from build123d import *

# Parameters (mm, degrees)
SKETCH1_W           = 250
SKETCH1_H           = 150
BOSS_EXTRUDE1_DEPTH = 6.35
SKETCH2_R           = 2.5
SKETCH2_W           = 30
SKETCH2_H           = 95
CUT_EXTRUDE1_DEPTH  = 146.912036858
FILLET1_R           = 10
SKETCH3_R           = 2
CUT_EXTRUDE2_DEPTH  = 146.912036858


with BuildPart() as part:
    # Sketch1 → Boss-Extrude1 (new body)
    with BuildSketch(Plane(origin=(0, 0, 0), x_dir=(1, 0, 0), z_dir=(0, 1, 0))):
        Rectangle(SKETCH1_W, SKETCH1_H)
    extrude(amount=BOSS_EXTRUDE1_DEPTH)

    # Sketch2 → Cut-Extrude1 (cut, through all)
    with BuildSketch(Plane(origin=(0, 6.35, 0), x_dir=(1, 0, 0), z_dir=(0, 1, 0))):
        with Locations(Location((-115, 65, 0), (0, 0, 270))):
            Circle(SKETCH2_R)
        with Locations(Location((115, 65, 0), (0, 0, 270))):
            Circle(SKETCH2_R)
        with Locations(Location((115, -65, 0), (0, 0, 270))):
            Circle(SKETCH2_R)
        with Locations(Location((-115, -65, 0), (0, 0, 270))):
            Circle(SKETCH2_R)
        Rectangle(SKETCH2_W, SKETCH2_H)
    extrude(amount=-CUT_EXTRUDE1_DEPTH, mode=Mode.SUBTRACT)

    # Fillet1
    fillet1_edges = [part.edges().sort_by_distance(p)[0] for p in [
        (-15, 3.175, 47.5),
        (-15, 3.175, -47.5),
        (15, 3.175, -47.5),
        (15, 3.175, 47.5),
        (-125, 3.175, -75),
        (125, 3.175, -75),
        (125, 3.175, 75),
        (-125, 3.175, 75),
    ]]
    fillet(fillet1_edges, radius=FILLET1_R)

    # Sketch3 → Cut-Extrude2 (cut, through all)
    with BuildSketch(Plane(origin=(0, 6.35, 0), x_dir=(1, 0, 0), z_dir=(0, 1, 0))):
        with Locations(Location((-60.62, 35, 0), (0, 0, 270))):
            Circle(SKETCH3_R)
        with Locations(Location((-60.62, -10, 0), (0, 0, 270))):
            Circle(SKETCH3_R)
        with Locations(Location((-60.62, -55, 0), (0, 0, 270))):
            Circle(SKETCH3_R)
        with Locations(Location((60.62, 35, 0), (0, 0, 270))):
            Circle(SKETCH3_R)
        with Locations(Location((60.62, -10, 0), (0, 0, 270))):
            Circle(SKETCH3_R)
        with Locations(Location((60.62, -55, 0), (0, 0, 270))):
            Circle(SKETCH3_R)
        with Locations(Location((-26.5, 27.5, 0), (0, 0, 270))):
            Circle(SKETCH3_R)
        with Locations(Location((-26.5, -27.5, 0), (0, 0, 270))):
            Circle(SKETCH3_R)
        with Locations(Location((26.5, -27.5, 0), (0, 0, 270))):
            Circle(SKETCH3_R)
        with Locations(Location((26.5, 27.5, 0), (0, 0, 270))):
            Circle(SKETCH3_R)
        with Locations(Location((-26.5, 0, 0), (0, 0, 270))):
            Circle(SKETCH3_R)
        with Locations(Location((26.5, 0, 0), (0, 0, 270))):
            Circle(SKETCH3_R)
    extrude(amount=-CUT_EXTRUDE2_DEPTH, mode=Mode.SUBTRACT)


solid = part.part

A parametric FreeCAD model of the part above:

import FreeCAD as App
import Part
import Sketcher
Q = App.Units.Quantity


def edges_at(feature, points):
    """Names of the edges that pass closest to the given points."""
    edges = feature.Shape.Edges
    near = lambda p: min(range(len(edges)), key=lambda i: edges[i].distToShape(Part.Vertex(*p))[0])
    return sorted({f"Edge{near(p) + 1}" for p in points})

doc = App.newDocument("Part")
params = doc.addObject("Spreadsheet::Sheet", "Params")
for row, (alias, value) in enumerate([
    ("sketch1_width", "250 mm"),
    ("sketch1_height", "150 mm"),
    ("pad1_length", "6.35 mm"),
    ("sketch2_diameter", "5 mm"),
    ("sketch2_width", "30 mm"),
    ("sketch2_height", "95 mm"),
    ("fillet_radius", "10 mm"),
    ("sketch3_diameter", "4 mm"),
], start=1):
    params.set(f"A{row}", alias)
    params.set(f"B{row}", "=" + value)
    params.setAlias(f"B{row}", alias)

body = doc.addObject("PartDesign::Body", "Body")

# Sketch on XZ plane
sketch1 = body.newObject("Sketcher::SketchObject", "Sketch")
sketch1.AttachmentSupport = (doc.getObject("XZ_Plane"), [""])
sketch1.MapMode = "FlatFace"
sketch1.addGeometry([
    Part.LineSegment(App.Vector(-125, -75, 0), App.Vector(-125, 75, 0)),
    Part.LineSegment(App.Vector(-125, 75, 0), App.Vector(125, 75, 0)),
    Part.LineSegment(App.Vector(125, 75, 0), App.Vector(125, -75, 0)),
    Part.LineSegment(App.Vector(125, -75, 0), App.Vector(-125, -75, 0)),
], False)
sketch1.addConstraint([
    Sketcher.Constraint("Coincident", 0, 2, 1, 1),
    Sketcher.Constraint("Coincident", 1, 2, 2, 1),
    Sketcher.Constraint("Coincident", 2, 2, 3, 1),
    Sketcher.Constraint("Coincident", 3, 2, 0, 1),
    Sketcher.Constraint("Vertical", 0),
    Sketcher.Constraint("Horizontal", 1),
    Sketcher.Constraint("Vertical", 2),
    Sketcher.Constraint("Horizontal", 3),
    Sketcher.Constraint("Symmetric", 0, 2, 2, 2, -1, 1),
    Sketcher.Constraint("DistanceX", 1, 1, 1, 2, Q("250 mm")),
    Sketcher.Constraint("DistanceY", 0, 1, 0, 2, Q("150 mm")),
])
sketch1.setExpression("Constraints[9]", "Params.sketch1_width")
sketch1.setExpression("Constraints[10]", "Params.sketch1_height")
pad1 = body.newObject("PartDesign::Pad", "Pad")
pad1.Profile = sketch1
pad1.setExpression("Length", "Params.pad1_length")
pad1.Reversed = True

# Sketch on XZ plane
sketch2 = body.newObject("Sketcher::SketchObject", "Sketch001")
sketch2.AttachmentSupport = (doc.getObject("XZ_Plane"), [""])
sketch2.MapMode = "FlatFace"
sketch2.AttachmentOffset = App.Placement(App.Vector(0, 0, -6.35), App.Rotation())
sketch2.addGeometry([
    Part.Circle(App.Vector(-115, -65, 0), App.Vector(0, 0, 1), 2.5),  # 0
    Part.Circle(App.Vector(115, -65, 0), App.Vector(0, 0, 1), 2.5),  # 1
    Part.Circle(App.Vector(115, 65, 0), App.Vector(0, 0, 1), 2.5),  # 2
    Part.Circle(App.Vector(-115, 65, 0), App.Vector(0, 0, 1), 2.5),  # 3
    Part.LineSegment(App.Vector(-15, -47.5, 0), App.Vector(-15, 47.5, 0)),  # 4
    Part.LineSegment(App.Vector(-15, 47.5, 0), App.Vector(15, 47.5, 0)),  # 5
    Part.LineSegment(App.Vector(15, 47.5, 0), App.Vector(15, -47.5, 0)),  # 6
    Part.LineSegment(App.Vector(15, -47.5, 0), App.Vector(-15, -47.5, 0)),  # 7
], False)
sketch2.addConstraint([
    Sketcher.Constraint("Coincident", 4, 2, 5, 1),
    Sketcher.Constraint("Coincident", 5, 2, 6, 1),
    Sketcher.Constraint("Coincident", 6, 2, 7, 1),
    Sketcher.Constraint("Coincident", 7, 2, 4, 1),
    Sketcher.Constraint("Vertical", 4),
    Sketcher.Constraint("Horizontal", 5),
    Sketcher.Constraint("Vertical", 6),
    Sketcher.Constraint("Horizontal", 7),
    Sketcher.Constraint("Equal", 0, 1),
    Sketcher.Constraint("Equal", 1, 2),
    Sketcher.Constraint("Equal", 2, 3),
    Sketcher.Constraint("Symmetric", 0, 3, 2, 3, -1, 1),
    Sketcher.Constraint("Symmetric", 1, 3, 3, 3, -1, 1),
    Sketcher.Constraint("Symmetric", 4, 2, 6, 2, -1, 1),
    Sketcher.Constraint("Symmetric", 0, 3, 1, 3, -2),
    Sketcher.Constraint("Diameter", 0, Q("5 mm")),
    Sketcher.Constraint("DistanceX", 5, 1, 5, 2, Q("30 mm")),
    Sketcher.Constraint("DistanceY", 4, 1, 4, 2, Q("95 mm")),
    Sketcher.Constraint("DistanceX", 0, 3, -1, 1, Q("115 mm")),
    Sketcher.Constraint("DistanceY", 0, 3, -1, 1, Q("65 mm")),
])
sketch2.setExpression("Constraints[15]", "Params.sketch2_diameter")
sketch2.setExpression("Constraints[16]", "Params.sketch2_width")
sketch2.setExpression("Constraints[17]", "Params.sketch2_height")
pocket1 = body.newObject("PartDesign::Pocket", "Pocket")
pocket1.Profile = sketch2
pocket1.Type = "ThroughAll"
pocket1.Reversed = True
doc.recompute()

fillet = body.newObject("PartDesign::Fillet", "Fillet")
fillet.Base = (pocket1, edges_at(pocket1, [
    (-15, 3.175, 47.5),
    (-15, 3.175, -47.5),
    (15, 3.175, -47.5),
    (15, 3.175, 47.5),
    (-125, 3.175, -75),
    (125, 3.175, -75),
    (125, 3.175, 75),
    (-125, 3.175, 75),
]))
fillet.setExpression("Radius", "Params.fillet_radius")

# Sketch on XZ plane
sketch3 = body.newObject("Sketcher::SketchObject", "Sketch002")
sketch3.AttachmentSupport = (doc.getObject("XZ_Plane"), [""])
sketch3.MapMode = "FlatFace"
sketch3.AttachmentOffset = App.Placement(App.Vector(0, 0, -6.35), App.Rotation())
sketch3.addGeometry([
    Part.Circle(App.Vector(-60.62, -35, 0), App.Vector(0, 0, 1), 2),  # 0
    Part.Circle(App.Vector(-60.62, 10, 0), App.Vector(0, 0, 1), 2),  # 1
    Part.Circle(App.Vector(-60.62, 55, 0), App.Vector(0, 0, 1), 2),  # 2
    Part.Circle(App.Vector(60.62, -35, 0), App.Vector(0, 0, 1), 2),  # 3
    Part.Circle(App.Vector(60.62, 10, 0), App.Vector(0, 0, 1), 2),  # 4
    Part.Circle(App.Vector(60.62, 55, 0), App.Vector(0, 0, 1), 2),  # 5
    Part.Circle(App.Vector(-26.5, -27.5, 0), App.Vector(0, 0, 1), 2),  # 6
    Part.Circle(App.Vector(-26.5, 27.5, 0), App.Vector(0, 0, 1), 2),  # 7
    Part.Circle(App.Vector(26.5, 27.5, 0), App.Vector(0, 0, 1), 2),  # 8
    Part.Circle(App.Vector(26.5, -27.5, 0), App.Vector(0, 0, 1), 2),  # 9
    Part.Circle(App.Vector(-26.5, 0, 0), App.Vector(0, 0, 1), 2),  # 10
    Part.Circle(App.Vector(26.5, 0, 0), App.Vector(0, 0, 1), 2),  # 11
], False)
sketch3.addConstraint([
    Sketcher.Constraint("Equal", 0, 1),
    Sketcher.Constraint("Equal", 1, 2),
    Sketcher.Constraint("Equal", 2, 3),
    Sketcher.Constraint("Equal", 3, 4),
    Sketcher.Constraint("Equal", 4, 5),
    Sketcher.Constraint("Equal", 5, 6),
    Sketcher.Constraint("Equal", 6, 7),
    Sketcher.Constraint("Equal", 7, 8),
    Sketcher.Constraint("Equal", 8, 9),
    Sketcher.Constraint("Equal", 9, 10),
    Sketcher.Constraint("Equal", 10, 11),
    Sketcher.Constraint("Symmetric", 6, 3, 8, 3, -1, 1),
    Sketcher.Constraint("Symmetric", 7, 3, 9, 3, -1, 1),
    Sketcher.Constraint("Symmetric", 10, 3, 11, 3, -1, 1),
    Sketcher.Constraint("Symmetric", 0, 3, 3, 3, -2),
    Sketcher.Constraint("Symmetric", 1, 3, 4, 3, -2),
    Sketcher.Constraint("Symmetric", 2, 3, 5, 3, -2),
    Sketcher.Constraint("Symmetric", 7, 3, 8, 3, -2),
    Sketcher.Constraint("PointOnObject", 10, 3, -1),
    Sketcher.Constraint("Vertical", 0, 3, 1, 3),
    Sketcher.Constraint("Vertical", 1, 3, 2, 3),
    Sketcher.Constraint("Vertical", 7, 3, 10, 3),
    Sketcher.Constraint("Diameter", 0, Q("4 mm")),
    Sketcher.Constraint("DistanceY", 0, 3, -1, 1, Q("35 mm")),
    Sketcher.Constraint("DistanceY", -1, 1, 1, 3, Q("10 mm")),
    Sketcher.Constraint("DistanceY", -1, 1, 2, 3, Q("55 mm")),
    Sketcher.Constraint("DistanceY", 6, 3, 7, 3, Q("55 mm")),
    Sketcher.Constraint("DistanceX", 7, 3, 8, 3, Q("53 mm")),
    Sketcher.Constraint("DistanceX", 0, 3, -1, 1, Q("60.62 mm")),
])
sketch3.setExpression("Constraints[22]", "Params.sketch3_diameter")
pocket2 = body.newObject("PartDesign::Pocket", "Pocket001")
pocket2.Profile = sketch3
pocket2.Type = "ThroughAll"
pocket2.Reversed = True

doc.recompute()
